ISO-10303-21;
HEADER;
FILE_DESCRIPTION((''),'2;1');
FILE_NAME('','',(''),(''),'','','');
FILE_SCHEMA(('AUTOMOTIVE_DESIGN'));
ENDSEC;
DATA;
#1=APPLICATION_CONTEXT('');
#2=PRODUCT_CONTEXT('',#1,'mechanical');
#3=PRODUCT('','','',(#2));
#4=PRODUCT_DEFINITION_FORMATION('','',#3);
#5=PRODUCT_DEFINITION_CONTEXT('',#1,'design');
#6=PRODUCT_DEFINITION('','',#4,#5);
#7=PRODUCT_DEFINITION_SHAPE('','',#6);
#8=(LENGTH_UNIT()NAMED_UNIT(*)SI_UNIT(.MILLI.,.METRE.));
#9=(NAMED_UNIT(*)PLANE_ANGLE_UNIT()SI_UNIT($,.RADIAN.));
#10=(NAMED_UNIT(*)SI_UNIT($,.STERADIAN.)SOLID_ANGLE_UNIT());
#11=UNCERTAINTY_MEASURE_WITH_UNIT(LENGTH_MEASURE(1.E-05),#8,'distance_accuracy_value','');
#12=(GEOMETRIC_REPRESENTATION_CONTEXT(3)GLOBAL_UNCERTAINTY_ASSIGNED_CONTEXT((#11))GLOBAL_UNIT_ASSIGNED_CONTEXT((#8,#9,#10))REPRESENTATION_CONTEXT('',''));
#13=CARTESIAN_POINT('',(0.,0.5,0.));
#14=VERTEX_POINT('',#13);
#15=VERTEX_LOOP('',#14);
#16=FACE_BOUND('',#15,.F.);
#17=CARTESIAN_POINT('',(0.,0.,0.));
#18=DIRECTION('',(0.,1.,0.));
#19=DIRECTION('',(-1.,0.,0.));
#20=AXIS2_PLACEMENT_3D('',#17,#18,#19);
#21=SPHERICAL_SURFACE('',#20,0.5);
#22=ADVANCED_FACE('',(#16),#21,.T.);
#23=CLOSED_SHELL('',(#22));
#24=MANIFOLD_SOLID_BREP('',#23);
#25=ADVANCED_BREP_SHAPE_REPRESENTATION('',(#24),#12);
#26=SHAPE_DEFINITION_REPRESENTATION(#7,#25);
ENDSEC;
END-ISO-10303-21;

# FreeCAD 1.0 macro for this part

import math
import FreeCAD as App
import Part
import Sketcher
from FreeCAD import Vector
Q = App.Units.Quantity

doc = App.newDocument("Part")
body = doc.addObject("PartDesign::Body", "Body")

# Sketch on XY plane
sketch1 = doc.addObject("Sketcher::SketchObject", "Sketch")
body.addObject(sketch1)
sketch1.AttachmentSupport = (doc.XY_Plane, [""])
sketch1.MapMode = "FlatFace"
sketch1.addGeometry([
    Part.LineSegment(Vector(0, -0.5, 0), Vector(0, 0.5, 0)),
    Part.ArcOfCircle(Part.Circle(Vector(0, 0, 0), Vector(0, 0, 1), 0.5), math.radians(90), math.radians(270)),
], False)
sketch1.addConstraint([
    Sketcher.Constraint("Coincident", 0, 1, 1, 2),
    Sketcher.Constraint("Coincident", 1, 1, 0, 2),
    Sketcher.Constraint("Vertical", 0),
    Sketcher.Constraint("Coincident", 1, 3, -1, 1),
    Sketcher.Constraint("PointOnObject", 0, 1, -2),
    Sketcher.Constraint("Radius", 1, Q("0.5 mm")),
])
revolution = doc.addObject("PartDesign::Revolution", "Revolution")
body.addObject(revolution)
revolution.Profile = sketch1
revolution.ReferenceAxis = (sketch1, ["V_Axis"])
revolution.Angle = 360

doc.recompute()
